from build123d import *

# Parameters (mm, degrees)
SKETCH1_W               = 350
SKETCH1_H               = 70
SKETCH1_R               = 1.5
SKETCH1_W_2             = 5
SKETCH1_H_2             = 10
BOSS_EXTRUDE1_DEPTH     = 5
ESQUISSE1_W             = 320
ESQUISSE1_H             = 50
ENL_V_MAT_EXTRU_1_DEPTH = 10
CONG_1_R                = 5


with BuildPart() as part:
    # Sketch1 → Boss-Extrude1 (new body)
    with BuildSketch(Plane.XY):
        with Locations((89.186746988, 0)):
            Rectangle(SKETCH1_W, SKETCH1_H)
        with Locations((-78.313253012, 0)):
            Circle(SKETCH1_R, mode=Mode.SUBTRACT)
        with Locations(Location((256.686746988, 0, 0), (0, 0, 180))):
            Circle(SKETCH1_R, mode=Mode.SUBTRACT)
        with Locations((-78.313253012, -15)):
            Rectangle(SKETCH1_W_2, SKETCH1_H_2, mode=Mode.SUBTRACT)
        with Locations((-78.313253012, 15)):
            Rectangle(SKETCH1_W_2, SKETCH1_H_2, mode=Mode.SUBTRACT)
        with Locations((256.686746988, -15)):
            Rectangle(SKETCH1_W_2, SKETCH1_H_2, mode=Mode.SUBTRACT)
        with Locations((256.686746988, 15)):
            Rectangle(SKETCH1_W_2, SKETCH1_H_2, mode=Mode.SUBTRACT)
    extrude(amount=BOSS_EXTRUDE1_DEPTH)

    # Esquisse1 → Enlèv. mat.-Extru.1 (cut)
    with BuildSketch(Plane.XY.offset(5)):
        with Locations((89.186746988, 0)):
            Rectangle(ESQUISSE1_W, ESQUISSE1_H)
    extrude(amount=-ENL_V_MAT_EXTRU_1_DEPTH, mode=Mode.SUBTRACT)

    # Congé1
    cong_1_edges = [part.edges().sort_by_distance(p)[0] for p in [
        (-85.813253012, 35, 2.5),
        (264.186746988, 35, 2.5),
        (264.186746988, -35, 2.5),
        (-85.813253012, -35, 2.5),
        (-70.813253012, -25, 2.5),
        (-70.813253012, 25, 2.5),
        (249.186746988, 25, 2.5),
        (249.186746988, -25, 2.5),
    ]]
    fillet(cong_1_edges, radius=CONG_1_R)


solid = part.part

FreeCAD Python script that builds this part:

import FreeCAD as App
import Part
import Sketcher

V = App.Vector
Q = App.Units.Quantity


def edges_at(feature, points):
    """Names of the edges that pass closest to the given points."""
    edges = feature.Shape.Edges
    near = lambda p: min(range(len(edges)), key=lambda i: edges[i].distToShape(Part.Vertex(*p))[0])
    return sorted({f"Edge{near(p) + 1}" for p in points})


def add_polygon(sketch, points):
    """Adds a closed chain of lines whose ends are joined by coincident constraints."""
    first, n = sketch.GeometryCount, len(points)
    for a, b in zip(points, points[1:] + points[:1]):
        sketch.addGeometry(Part.LineSegment(App.Vector(*a, 0), App.Vector(*b, 0)), False)
    for i in range(n):
        sketch.addConstraint(Sketcher.Constraint("Coincident", first + i, 2, first + (i + 1) % n, 1))

doc = App.newDocument("Part")
body = doc.addObject("PartDesign::Body", "Body")

sketch1 = body.newObject("Sketcher::SketchObject", "Sketch")
sketch1.AttachmentSupport = (doc.getObject("XY_Plane"), [""])
sketch1.MapMode = "FlatFace"
add_polygon(sketch1, [(-85.813253, 35), (-85.813253, -35), (264.186747, -35), (264.186747, 35)])
add_polygon(sketch1, [(-75.813253, -20), (-80.813253, -20), (-80.813253, -10), (-75.813253, -10)])
add_polygon(sketch1, [(259.186747, -20), (254.186747, -20), (254.186747, -10), (259.186747, -10)])
sketch1.addGeometry(Part.Circle(V(-78.313253, 0, 0), V(0, 0, 1), 1.5), False)
add_polygon(sketch1, [(-75.813253, 10), (-80.813253, 10), (-80.813253, 20), (-75.813253, 20)])
sketch1.addGeometry(Part.Circle(V(256.686747, 0, 0), V(0, 0, 1), 1.5), False)
add_polygon(sketch1, [(259.186747, 10), (254.186747, 10), (254.186747, 20), (259.186747, 20)])
sketch1.addConstraint([
    Sketcher.Constraint("Vertical", 0),
    Sketcher.Constraint("Horizontal", 1),
    Sketcher.Constraint("Vertical", 2),
    Sketcher.Constraint("Horizontal", 3),
    Sketcher.Constraint("Horizontal", 4),
    Sketcher.Constraint("Vertical", 5),
    Sketcher.Constraint("Horizontal", 6),
    Sketcher.Constraint("Vertical", 7),
    Sketcher.Constraint("Horizontal", 8),
    Sketcher.Constraint("Vertical", 9),
    Sketcher.Constraint("Horizontal", 10),
    Sketcher.Constraint("Vertical", 11),
    Sketcher.Constraint("Horizontal", 13),
    Sketcher.Constraint("Vertical", 14),
    Sketcher.Constraint("Horizontal", 15),
    Sketcher.Constraint("Vertical", 16),
    Sketcher.Constraint("Horizontal", 18),
    Sketcher.Constraint("Vertical", 19),
    Sketcher.Constraint("Horizontal", 20),
    Sketcher.Constraint("Vertical", 21),
    Sketcher.Constraint("Equal", 12, 17),
    Sketcher.Constraint("Symmetric", 5, 2, 13, 2, -1),
    Sketcher.Constraint("Symmetric", 7, 2, 15, 2, -1),
    Sketcher.Constraint("Symmetric", 9, 2, 18, 2, -1),
    Sketcher.Constraint("Symmetric", 11, 2, 20, 2, -1),
    Sketcher.Constraint("PointOnObject", 12, 3, -1),
    Sketcher.Constraint("PointOnObject", 17, 3, -1),
    Sketcher.Constraint("Horizontal", 7, 2, 8, 2),
    Sketcher.Constraint("Horizontal", 6, 2, 9, 2),
    Sketcher.Constraint("Equal", 6, 8),
    Sketcher.Constraint("Diameter", 12, Q("3 mm")),
    Sketcher.Constraint("DistanceX", 1, 1, 1, 2, Q("350 mm")),
    Sketcher.Constraint("DistanceX", 4, 2, 4, 1, Q("5 mm")),
    Sketcher.Constraint("DistanceY", 0, 2, 0, 1, Q("70 mm")),
    Sketcher.Constraint("DistanceY", 5, 1, 5, 2, Q("10 mm")),
    Sketcher.Constraint("DistanceY", 0, 2, -1, 1, Q("35 mm")),
    Sketcher.Constraint("DistanceY", 4, 2, -1, 1, Q("20 mm")),
    Sketcher.Constraint("DistanceX", 12, 3, 17, 3, Q("335 mm")),
    Sketcher.Constraint("DistanceX", 0, 2, 4, 2, Q("5 mm")),
    Sketcher.Constraint("DistanceX", 8, 2, 1, 2, Q("10 mm")),
    Sketcher.Constraint("DistanceX", 0, 2, 12, 3, Q("7.5 mm")),
    Sketcher.Constraint("DistanceX", 12, 3, -1, 1, Q("78.313253 mm")),
])
pad1 = body.newObject("PartDesign::Pad", "Pad")
pad1.Profile = sketch1
pad1.Length = 5

sketch2 = body.newObject("Sketcher::SketchObject", "Sketch001")
sketch2.AttachmentSupport = (doc.getObject("XY_Plane"), [""])
sketch2.MapMode = "FlatFace"
sketch2.AttachmentOffset = App.Placement(V(0, 0, 5), App.Rotation())
add_polygon(sketch2, [(-70.813253, 25), (-70.813253, -25), (249.186747, -25), (249.186747, 25)])
sketch2.addConstraint([
    Sketcher.Constraint("Vertical", 0),
    Sketcher.Constraint("Horizontal", 1),
    Sketcher.Constraint("Vertical", 2),
    Sketcher.Constraint("Horizontal", 3),
    Sketcher.Constraint("DistanceX", 1, 1, 1, 2, Q("320 mm")),
    Sketcher.Constraint("DistanceY", 0, 2, 0, 1, Q("50 mm")),
    Sketcher.Constraint("DistanceY", 0, 2, -1, 1, Q("25 mm")),
    Sketcher.Constraint("DistanceX", 0, 2, -1, 1, Q("70.813253 mm")),
])
pocket1 = body.newObject("PartDesign::Pocket", "Pocket")
pocket1.Profile = sketch2
pocket1.Length = 10
doc.recompute()

fillet = body.newObject("PartDesign::Fillet", "Fillet")
fillet.Base = (pocket1, edges_at(pocket1, [
    (-85.813, 35, 2.5),
    (264.187, 35, 2.5),
    (264.187, -35, 2.5),
    (-85.813, -35, 2.5),
    (-70.813, -25, 2.5),
    (-70.813, 25, 2.5),
    (249.187, 25, 2.5),
    (249.187, -25, 2.5),
]))
fillet.Radius = 5

doc.recompute()
